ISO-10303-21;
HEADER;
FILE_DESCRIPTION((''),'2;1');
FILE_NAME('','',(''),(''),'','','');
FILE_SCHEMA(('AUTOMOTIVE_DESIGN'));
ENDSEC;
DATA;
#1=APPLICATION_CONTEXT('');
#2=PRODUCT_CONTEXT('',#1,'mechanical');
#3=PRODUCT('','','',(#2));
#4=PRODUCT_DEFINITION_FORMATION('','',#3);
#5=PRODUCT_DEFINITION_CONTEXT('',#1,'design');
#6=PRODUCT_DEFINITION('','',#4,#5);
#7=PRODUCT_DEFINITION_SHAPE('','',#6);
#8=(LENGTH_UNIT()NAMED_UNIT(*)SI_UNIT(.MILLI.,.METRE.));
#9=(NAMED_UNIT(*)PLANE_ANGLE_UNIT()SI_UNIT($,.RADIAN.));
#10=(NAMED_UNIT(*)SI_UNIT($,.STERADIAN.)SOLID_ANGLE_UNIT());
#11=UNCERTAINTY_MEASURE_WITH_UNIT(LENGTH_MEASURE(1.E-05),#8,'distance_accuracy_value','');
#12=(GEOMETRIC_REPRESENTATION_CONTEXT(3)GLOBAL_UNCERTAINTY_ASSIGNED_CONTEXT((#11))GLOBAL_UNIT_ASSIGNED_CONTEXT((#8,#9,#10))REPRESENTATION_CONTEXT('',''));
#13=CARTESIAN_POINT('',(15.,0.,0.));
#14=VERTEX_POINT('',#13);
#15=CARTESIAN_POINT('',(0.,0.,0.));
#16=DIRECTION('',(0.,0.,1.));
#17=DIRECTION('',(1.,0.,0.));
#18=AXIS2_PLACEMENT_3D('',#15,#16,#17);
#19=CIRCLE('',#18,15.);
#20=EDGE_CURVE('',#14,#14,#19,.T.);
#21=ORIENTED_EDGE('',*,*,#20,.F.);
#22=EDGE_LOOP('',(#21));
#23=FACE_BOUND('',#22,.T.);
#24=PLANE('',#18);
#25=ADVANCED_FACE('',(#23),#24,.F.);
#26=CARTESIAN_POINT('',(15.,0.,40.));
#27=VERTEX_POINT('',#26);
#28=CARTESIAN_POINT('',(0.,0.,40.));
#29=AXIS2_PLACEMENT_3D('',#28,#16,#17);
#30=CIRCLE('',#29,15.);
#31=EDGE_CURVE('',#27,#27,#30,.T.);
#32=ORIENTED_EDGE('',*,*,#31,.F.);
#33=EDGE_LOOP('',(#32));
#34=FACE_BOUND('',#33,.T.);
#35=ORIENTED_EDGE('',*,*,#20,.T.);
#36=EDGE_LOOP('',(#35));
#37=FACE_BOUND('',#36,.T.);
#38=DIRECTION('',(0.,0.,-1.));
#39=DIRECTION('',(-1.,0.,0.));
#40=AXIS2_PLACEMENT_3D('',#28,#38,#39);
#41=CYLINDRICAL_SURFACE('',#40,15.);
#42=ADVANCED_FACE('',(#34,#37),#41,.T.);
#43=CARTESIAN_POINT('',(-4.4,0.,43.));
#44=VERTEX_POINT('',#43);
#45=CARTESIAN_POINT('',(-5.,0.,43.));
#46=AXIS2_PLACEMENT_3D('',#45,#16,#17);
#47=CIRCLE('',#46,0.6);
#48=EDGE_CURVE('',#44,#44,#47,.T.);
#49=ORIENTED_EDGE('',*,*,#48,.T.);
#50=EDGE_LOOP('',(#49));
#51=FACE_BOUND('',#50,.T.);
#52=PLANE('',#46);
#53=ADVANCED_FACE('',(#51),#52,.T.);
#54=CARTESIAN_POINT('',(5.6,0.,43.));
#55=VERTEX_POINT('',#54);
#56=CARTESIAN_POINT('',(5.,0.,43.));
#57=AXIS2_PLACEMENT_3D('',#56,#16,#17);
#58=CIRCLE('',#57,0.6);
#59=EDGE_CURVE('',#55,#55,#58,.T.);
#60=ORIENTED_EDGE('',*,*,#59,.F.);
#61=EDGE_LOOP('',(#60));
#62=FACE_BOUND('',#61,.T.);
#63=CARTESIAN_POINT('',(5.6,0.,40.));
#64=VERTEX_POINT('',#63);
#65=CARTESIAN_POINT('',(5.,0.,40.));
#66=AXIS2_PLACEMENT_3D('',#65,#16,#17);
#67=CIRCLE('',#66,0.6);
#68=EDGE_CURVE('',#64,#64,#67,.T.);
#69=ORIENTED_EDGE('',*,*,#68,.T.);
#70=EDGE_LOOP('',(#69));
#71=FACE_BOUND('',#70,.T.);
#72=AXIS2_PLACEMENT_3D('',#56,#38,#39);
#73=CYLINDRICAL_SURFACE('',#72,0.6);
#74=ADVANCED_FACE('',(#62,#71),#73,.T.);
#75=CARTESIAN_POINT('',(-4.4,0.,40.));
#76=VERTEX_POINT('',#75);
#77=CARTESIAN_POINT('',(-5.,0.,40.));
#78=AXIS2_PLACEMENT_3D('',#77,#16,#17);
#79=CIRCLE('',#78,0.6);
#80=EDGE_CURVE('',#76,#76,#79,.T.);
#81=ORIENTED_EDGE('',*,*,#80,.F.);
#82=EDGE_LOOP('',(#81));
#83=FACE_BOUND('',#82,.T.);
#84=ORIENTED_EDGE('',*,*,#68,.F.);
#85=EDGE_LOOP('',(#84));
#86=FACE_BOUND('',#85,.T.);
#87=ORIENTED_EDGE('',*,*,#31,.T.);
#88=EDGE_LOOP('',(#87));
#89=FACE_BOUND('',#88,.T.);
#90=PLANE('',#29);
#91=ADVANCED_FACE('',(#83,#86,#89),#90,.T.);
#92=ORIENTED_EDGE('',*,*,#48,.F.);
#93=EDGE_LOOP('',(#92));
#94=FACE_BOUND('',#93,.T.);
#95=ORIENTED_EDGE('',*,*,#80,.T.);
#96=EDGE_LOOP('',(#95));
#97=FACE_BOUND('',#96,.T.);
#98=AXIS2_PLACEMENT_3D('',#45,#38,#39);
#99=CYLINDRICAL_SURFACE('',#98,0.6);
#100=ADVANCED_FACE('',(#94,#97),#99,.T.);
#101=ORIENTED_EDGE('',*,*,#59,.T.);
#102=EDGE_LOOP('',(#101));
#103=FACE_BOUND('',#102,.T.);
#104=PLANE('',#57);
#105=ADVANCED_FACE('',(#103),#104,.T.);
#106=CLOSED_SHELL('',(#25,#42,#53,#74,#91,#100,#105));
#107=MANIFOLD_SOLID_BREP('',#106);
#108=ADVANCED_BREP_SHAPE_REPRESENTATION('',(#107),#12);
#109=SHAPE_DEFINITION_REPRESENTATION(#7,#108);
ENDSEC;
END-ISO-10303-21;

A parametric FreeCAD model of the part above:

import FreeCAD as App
import Part
import Sketcher
Q = App.Units.Quantity

doc = App.newDocument("Part")
body = doc.addObject("PartDesign::Body", "Body")

# Sketch on XY plane
sketch1 = body.newObject("Sketcher::SketchObject", "Sketch")
sketch1.AttachmentSupport = (doc.getObject("XY_Plane"), [""])
sketch1.MapMode = "FlatFace"
sketch1.addGeometry(Part.Circle(App.Vector(0, 0, 0), App.Vector(0, 0, 1), 15), False)
sketch1.addConstraint(Sketcher.Constraint("Coincident", 0, 3, -1, 1))
sketch1.addConstraint(Sketcher.Constraint("Diameter", 0, Q("30 mm")))
pad1 = body.newObject("PartDesign::Pad", "Pad")
pad1.Profile = sketch1
pad1.Length = 40

# Sketch on XY plane
sketch2 = body.newObject("Sketcher::SketchObject", "Sketch001")
sketch2.AttachmentSupport = (doc.getObject("XY_Plane"), [""])
sketch2.MapMode = "FlatFace"
sketch2.AttachmentOffset = App.Placement(App.Vector(0, 0, 40), App.Rotation())
sketch2.addGeometry(Part.Circle(App.Vector(-5, 0, 0), App.Vector(0, 0, 1), 0.6), False)
sketch2.addGeometry(Part.Circle(App.Vector(5, 0, 0), App.Vector(0, 0, 1), 0.6), False)
sketch2.addConstraint(Sketcher.Constraint("Equal", 0, 1))
sketch2.addConstraint(Sketcher.Constraint("Symmetric", 0, 3, 1, 3, -1, 1))
sketch2.addConstraint(Sketcher.Constraint("PointOnObject", 0, 3, -1))
sketch2.addConstraint(Sketcher.Constraint("Diameter", 0, Q("1.2 mm")))
sketch2.addConstraint(Sketcher.Constraint("DistanceX", 0, 3, -1, 1, Q("5 mm")))
pad2 = body.newObject("PartDesign::Pad", "Pad001")
pad2.Profile = sketch2
pad2.Length = 3

doc.recompute()
